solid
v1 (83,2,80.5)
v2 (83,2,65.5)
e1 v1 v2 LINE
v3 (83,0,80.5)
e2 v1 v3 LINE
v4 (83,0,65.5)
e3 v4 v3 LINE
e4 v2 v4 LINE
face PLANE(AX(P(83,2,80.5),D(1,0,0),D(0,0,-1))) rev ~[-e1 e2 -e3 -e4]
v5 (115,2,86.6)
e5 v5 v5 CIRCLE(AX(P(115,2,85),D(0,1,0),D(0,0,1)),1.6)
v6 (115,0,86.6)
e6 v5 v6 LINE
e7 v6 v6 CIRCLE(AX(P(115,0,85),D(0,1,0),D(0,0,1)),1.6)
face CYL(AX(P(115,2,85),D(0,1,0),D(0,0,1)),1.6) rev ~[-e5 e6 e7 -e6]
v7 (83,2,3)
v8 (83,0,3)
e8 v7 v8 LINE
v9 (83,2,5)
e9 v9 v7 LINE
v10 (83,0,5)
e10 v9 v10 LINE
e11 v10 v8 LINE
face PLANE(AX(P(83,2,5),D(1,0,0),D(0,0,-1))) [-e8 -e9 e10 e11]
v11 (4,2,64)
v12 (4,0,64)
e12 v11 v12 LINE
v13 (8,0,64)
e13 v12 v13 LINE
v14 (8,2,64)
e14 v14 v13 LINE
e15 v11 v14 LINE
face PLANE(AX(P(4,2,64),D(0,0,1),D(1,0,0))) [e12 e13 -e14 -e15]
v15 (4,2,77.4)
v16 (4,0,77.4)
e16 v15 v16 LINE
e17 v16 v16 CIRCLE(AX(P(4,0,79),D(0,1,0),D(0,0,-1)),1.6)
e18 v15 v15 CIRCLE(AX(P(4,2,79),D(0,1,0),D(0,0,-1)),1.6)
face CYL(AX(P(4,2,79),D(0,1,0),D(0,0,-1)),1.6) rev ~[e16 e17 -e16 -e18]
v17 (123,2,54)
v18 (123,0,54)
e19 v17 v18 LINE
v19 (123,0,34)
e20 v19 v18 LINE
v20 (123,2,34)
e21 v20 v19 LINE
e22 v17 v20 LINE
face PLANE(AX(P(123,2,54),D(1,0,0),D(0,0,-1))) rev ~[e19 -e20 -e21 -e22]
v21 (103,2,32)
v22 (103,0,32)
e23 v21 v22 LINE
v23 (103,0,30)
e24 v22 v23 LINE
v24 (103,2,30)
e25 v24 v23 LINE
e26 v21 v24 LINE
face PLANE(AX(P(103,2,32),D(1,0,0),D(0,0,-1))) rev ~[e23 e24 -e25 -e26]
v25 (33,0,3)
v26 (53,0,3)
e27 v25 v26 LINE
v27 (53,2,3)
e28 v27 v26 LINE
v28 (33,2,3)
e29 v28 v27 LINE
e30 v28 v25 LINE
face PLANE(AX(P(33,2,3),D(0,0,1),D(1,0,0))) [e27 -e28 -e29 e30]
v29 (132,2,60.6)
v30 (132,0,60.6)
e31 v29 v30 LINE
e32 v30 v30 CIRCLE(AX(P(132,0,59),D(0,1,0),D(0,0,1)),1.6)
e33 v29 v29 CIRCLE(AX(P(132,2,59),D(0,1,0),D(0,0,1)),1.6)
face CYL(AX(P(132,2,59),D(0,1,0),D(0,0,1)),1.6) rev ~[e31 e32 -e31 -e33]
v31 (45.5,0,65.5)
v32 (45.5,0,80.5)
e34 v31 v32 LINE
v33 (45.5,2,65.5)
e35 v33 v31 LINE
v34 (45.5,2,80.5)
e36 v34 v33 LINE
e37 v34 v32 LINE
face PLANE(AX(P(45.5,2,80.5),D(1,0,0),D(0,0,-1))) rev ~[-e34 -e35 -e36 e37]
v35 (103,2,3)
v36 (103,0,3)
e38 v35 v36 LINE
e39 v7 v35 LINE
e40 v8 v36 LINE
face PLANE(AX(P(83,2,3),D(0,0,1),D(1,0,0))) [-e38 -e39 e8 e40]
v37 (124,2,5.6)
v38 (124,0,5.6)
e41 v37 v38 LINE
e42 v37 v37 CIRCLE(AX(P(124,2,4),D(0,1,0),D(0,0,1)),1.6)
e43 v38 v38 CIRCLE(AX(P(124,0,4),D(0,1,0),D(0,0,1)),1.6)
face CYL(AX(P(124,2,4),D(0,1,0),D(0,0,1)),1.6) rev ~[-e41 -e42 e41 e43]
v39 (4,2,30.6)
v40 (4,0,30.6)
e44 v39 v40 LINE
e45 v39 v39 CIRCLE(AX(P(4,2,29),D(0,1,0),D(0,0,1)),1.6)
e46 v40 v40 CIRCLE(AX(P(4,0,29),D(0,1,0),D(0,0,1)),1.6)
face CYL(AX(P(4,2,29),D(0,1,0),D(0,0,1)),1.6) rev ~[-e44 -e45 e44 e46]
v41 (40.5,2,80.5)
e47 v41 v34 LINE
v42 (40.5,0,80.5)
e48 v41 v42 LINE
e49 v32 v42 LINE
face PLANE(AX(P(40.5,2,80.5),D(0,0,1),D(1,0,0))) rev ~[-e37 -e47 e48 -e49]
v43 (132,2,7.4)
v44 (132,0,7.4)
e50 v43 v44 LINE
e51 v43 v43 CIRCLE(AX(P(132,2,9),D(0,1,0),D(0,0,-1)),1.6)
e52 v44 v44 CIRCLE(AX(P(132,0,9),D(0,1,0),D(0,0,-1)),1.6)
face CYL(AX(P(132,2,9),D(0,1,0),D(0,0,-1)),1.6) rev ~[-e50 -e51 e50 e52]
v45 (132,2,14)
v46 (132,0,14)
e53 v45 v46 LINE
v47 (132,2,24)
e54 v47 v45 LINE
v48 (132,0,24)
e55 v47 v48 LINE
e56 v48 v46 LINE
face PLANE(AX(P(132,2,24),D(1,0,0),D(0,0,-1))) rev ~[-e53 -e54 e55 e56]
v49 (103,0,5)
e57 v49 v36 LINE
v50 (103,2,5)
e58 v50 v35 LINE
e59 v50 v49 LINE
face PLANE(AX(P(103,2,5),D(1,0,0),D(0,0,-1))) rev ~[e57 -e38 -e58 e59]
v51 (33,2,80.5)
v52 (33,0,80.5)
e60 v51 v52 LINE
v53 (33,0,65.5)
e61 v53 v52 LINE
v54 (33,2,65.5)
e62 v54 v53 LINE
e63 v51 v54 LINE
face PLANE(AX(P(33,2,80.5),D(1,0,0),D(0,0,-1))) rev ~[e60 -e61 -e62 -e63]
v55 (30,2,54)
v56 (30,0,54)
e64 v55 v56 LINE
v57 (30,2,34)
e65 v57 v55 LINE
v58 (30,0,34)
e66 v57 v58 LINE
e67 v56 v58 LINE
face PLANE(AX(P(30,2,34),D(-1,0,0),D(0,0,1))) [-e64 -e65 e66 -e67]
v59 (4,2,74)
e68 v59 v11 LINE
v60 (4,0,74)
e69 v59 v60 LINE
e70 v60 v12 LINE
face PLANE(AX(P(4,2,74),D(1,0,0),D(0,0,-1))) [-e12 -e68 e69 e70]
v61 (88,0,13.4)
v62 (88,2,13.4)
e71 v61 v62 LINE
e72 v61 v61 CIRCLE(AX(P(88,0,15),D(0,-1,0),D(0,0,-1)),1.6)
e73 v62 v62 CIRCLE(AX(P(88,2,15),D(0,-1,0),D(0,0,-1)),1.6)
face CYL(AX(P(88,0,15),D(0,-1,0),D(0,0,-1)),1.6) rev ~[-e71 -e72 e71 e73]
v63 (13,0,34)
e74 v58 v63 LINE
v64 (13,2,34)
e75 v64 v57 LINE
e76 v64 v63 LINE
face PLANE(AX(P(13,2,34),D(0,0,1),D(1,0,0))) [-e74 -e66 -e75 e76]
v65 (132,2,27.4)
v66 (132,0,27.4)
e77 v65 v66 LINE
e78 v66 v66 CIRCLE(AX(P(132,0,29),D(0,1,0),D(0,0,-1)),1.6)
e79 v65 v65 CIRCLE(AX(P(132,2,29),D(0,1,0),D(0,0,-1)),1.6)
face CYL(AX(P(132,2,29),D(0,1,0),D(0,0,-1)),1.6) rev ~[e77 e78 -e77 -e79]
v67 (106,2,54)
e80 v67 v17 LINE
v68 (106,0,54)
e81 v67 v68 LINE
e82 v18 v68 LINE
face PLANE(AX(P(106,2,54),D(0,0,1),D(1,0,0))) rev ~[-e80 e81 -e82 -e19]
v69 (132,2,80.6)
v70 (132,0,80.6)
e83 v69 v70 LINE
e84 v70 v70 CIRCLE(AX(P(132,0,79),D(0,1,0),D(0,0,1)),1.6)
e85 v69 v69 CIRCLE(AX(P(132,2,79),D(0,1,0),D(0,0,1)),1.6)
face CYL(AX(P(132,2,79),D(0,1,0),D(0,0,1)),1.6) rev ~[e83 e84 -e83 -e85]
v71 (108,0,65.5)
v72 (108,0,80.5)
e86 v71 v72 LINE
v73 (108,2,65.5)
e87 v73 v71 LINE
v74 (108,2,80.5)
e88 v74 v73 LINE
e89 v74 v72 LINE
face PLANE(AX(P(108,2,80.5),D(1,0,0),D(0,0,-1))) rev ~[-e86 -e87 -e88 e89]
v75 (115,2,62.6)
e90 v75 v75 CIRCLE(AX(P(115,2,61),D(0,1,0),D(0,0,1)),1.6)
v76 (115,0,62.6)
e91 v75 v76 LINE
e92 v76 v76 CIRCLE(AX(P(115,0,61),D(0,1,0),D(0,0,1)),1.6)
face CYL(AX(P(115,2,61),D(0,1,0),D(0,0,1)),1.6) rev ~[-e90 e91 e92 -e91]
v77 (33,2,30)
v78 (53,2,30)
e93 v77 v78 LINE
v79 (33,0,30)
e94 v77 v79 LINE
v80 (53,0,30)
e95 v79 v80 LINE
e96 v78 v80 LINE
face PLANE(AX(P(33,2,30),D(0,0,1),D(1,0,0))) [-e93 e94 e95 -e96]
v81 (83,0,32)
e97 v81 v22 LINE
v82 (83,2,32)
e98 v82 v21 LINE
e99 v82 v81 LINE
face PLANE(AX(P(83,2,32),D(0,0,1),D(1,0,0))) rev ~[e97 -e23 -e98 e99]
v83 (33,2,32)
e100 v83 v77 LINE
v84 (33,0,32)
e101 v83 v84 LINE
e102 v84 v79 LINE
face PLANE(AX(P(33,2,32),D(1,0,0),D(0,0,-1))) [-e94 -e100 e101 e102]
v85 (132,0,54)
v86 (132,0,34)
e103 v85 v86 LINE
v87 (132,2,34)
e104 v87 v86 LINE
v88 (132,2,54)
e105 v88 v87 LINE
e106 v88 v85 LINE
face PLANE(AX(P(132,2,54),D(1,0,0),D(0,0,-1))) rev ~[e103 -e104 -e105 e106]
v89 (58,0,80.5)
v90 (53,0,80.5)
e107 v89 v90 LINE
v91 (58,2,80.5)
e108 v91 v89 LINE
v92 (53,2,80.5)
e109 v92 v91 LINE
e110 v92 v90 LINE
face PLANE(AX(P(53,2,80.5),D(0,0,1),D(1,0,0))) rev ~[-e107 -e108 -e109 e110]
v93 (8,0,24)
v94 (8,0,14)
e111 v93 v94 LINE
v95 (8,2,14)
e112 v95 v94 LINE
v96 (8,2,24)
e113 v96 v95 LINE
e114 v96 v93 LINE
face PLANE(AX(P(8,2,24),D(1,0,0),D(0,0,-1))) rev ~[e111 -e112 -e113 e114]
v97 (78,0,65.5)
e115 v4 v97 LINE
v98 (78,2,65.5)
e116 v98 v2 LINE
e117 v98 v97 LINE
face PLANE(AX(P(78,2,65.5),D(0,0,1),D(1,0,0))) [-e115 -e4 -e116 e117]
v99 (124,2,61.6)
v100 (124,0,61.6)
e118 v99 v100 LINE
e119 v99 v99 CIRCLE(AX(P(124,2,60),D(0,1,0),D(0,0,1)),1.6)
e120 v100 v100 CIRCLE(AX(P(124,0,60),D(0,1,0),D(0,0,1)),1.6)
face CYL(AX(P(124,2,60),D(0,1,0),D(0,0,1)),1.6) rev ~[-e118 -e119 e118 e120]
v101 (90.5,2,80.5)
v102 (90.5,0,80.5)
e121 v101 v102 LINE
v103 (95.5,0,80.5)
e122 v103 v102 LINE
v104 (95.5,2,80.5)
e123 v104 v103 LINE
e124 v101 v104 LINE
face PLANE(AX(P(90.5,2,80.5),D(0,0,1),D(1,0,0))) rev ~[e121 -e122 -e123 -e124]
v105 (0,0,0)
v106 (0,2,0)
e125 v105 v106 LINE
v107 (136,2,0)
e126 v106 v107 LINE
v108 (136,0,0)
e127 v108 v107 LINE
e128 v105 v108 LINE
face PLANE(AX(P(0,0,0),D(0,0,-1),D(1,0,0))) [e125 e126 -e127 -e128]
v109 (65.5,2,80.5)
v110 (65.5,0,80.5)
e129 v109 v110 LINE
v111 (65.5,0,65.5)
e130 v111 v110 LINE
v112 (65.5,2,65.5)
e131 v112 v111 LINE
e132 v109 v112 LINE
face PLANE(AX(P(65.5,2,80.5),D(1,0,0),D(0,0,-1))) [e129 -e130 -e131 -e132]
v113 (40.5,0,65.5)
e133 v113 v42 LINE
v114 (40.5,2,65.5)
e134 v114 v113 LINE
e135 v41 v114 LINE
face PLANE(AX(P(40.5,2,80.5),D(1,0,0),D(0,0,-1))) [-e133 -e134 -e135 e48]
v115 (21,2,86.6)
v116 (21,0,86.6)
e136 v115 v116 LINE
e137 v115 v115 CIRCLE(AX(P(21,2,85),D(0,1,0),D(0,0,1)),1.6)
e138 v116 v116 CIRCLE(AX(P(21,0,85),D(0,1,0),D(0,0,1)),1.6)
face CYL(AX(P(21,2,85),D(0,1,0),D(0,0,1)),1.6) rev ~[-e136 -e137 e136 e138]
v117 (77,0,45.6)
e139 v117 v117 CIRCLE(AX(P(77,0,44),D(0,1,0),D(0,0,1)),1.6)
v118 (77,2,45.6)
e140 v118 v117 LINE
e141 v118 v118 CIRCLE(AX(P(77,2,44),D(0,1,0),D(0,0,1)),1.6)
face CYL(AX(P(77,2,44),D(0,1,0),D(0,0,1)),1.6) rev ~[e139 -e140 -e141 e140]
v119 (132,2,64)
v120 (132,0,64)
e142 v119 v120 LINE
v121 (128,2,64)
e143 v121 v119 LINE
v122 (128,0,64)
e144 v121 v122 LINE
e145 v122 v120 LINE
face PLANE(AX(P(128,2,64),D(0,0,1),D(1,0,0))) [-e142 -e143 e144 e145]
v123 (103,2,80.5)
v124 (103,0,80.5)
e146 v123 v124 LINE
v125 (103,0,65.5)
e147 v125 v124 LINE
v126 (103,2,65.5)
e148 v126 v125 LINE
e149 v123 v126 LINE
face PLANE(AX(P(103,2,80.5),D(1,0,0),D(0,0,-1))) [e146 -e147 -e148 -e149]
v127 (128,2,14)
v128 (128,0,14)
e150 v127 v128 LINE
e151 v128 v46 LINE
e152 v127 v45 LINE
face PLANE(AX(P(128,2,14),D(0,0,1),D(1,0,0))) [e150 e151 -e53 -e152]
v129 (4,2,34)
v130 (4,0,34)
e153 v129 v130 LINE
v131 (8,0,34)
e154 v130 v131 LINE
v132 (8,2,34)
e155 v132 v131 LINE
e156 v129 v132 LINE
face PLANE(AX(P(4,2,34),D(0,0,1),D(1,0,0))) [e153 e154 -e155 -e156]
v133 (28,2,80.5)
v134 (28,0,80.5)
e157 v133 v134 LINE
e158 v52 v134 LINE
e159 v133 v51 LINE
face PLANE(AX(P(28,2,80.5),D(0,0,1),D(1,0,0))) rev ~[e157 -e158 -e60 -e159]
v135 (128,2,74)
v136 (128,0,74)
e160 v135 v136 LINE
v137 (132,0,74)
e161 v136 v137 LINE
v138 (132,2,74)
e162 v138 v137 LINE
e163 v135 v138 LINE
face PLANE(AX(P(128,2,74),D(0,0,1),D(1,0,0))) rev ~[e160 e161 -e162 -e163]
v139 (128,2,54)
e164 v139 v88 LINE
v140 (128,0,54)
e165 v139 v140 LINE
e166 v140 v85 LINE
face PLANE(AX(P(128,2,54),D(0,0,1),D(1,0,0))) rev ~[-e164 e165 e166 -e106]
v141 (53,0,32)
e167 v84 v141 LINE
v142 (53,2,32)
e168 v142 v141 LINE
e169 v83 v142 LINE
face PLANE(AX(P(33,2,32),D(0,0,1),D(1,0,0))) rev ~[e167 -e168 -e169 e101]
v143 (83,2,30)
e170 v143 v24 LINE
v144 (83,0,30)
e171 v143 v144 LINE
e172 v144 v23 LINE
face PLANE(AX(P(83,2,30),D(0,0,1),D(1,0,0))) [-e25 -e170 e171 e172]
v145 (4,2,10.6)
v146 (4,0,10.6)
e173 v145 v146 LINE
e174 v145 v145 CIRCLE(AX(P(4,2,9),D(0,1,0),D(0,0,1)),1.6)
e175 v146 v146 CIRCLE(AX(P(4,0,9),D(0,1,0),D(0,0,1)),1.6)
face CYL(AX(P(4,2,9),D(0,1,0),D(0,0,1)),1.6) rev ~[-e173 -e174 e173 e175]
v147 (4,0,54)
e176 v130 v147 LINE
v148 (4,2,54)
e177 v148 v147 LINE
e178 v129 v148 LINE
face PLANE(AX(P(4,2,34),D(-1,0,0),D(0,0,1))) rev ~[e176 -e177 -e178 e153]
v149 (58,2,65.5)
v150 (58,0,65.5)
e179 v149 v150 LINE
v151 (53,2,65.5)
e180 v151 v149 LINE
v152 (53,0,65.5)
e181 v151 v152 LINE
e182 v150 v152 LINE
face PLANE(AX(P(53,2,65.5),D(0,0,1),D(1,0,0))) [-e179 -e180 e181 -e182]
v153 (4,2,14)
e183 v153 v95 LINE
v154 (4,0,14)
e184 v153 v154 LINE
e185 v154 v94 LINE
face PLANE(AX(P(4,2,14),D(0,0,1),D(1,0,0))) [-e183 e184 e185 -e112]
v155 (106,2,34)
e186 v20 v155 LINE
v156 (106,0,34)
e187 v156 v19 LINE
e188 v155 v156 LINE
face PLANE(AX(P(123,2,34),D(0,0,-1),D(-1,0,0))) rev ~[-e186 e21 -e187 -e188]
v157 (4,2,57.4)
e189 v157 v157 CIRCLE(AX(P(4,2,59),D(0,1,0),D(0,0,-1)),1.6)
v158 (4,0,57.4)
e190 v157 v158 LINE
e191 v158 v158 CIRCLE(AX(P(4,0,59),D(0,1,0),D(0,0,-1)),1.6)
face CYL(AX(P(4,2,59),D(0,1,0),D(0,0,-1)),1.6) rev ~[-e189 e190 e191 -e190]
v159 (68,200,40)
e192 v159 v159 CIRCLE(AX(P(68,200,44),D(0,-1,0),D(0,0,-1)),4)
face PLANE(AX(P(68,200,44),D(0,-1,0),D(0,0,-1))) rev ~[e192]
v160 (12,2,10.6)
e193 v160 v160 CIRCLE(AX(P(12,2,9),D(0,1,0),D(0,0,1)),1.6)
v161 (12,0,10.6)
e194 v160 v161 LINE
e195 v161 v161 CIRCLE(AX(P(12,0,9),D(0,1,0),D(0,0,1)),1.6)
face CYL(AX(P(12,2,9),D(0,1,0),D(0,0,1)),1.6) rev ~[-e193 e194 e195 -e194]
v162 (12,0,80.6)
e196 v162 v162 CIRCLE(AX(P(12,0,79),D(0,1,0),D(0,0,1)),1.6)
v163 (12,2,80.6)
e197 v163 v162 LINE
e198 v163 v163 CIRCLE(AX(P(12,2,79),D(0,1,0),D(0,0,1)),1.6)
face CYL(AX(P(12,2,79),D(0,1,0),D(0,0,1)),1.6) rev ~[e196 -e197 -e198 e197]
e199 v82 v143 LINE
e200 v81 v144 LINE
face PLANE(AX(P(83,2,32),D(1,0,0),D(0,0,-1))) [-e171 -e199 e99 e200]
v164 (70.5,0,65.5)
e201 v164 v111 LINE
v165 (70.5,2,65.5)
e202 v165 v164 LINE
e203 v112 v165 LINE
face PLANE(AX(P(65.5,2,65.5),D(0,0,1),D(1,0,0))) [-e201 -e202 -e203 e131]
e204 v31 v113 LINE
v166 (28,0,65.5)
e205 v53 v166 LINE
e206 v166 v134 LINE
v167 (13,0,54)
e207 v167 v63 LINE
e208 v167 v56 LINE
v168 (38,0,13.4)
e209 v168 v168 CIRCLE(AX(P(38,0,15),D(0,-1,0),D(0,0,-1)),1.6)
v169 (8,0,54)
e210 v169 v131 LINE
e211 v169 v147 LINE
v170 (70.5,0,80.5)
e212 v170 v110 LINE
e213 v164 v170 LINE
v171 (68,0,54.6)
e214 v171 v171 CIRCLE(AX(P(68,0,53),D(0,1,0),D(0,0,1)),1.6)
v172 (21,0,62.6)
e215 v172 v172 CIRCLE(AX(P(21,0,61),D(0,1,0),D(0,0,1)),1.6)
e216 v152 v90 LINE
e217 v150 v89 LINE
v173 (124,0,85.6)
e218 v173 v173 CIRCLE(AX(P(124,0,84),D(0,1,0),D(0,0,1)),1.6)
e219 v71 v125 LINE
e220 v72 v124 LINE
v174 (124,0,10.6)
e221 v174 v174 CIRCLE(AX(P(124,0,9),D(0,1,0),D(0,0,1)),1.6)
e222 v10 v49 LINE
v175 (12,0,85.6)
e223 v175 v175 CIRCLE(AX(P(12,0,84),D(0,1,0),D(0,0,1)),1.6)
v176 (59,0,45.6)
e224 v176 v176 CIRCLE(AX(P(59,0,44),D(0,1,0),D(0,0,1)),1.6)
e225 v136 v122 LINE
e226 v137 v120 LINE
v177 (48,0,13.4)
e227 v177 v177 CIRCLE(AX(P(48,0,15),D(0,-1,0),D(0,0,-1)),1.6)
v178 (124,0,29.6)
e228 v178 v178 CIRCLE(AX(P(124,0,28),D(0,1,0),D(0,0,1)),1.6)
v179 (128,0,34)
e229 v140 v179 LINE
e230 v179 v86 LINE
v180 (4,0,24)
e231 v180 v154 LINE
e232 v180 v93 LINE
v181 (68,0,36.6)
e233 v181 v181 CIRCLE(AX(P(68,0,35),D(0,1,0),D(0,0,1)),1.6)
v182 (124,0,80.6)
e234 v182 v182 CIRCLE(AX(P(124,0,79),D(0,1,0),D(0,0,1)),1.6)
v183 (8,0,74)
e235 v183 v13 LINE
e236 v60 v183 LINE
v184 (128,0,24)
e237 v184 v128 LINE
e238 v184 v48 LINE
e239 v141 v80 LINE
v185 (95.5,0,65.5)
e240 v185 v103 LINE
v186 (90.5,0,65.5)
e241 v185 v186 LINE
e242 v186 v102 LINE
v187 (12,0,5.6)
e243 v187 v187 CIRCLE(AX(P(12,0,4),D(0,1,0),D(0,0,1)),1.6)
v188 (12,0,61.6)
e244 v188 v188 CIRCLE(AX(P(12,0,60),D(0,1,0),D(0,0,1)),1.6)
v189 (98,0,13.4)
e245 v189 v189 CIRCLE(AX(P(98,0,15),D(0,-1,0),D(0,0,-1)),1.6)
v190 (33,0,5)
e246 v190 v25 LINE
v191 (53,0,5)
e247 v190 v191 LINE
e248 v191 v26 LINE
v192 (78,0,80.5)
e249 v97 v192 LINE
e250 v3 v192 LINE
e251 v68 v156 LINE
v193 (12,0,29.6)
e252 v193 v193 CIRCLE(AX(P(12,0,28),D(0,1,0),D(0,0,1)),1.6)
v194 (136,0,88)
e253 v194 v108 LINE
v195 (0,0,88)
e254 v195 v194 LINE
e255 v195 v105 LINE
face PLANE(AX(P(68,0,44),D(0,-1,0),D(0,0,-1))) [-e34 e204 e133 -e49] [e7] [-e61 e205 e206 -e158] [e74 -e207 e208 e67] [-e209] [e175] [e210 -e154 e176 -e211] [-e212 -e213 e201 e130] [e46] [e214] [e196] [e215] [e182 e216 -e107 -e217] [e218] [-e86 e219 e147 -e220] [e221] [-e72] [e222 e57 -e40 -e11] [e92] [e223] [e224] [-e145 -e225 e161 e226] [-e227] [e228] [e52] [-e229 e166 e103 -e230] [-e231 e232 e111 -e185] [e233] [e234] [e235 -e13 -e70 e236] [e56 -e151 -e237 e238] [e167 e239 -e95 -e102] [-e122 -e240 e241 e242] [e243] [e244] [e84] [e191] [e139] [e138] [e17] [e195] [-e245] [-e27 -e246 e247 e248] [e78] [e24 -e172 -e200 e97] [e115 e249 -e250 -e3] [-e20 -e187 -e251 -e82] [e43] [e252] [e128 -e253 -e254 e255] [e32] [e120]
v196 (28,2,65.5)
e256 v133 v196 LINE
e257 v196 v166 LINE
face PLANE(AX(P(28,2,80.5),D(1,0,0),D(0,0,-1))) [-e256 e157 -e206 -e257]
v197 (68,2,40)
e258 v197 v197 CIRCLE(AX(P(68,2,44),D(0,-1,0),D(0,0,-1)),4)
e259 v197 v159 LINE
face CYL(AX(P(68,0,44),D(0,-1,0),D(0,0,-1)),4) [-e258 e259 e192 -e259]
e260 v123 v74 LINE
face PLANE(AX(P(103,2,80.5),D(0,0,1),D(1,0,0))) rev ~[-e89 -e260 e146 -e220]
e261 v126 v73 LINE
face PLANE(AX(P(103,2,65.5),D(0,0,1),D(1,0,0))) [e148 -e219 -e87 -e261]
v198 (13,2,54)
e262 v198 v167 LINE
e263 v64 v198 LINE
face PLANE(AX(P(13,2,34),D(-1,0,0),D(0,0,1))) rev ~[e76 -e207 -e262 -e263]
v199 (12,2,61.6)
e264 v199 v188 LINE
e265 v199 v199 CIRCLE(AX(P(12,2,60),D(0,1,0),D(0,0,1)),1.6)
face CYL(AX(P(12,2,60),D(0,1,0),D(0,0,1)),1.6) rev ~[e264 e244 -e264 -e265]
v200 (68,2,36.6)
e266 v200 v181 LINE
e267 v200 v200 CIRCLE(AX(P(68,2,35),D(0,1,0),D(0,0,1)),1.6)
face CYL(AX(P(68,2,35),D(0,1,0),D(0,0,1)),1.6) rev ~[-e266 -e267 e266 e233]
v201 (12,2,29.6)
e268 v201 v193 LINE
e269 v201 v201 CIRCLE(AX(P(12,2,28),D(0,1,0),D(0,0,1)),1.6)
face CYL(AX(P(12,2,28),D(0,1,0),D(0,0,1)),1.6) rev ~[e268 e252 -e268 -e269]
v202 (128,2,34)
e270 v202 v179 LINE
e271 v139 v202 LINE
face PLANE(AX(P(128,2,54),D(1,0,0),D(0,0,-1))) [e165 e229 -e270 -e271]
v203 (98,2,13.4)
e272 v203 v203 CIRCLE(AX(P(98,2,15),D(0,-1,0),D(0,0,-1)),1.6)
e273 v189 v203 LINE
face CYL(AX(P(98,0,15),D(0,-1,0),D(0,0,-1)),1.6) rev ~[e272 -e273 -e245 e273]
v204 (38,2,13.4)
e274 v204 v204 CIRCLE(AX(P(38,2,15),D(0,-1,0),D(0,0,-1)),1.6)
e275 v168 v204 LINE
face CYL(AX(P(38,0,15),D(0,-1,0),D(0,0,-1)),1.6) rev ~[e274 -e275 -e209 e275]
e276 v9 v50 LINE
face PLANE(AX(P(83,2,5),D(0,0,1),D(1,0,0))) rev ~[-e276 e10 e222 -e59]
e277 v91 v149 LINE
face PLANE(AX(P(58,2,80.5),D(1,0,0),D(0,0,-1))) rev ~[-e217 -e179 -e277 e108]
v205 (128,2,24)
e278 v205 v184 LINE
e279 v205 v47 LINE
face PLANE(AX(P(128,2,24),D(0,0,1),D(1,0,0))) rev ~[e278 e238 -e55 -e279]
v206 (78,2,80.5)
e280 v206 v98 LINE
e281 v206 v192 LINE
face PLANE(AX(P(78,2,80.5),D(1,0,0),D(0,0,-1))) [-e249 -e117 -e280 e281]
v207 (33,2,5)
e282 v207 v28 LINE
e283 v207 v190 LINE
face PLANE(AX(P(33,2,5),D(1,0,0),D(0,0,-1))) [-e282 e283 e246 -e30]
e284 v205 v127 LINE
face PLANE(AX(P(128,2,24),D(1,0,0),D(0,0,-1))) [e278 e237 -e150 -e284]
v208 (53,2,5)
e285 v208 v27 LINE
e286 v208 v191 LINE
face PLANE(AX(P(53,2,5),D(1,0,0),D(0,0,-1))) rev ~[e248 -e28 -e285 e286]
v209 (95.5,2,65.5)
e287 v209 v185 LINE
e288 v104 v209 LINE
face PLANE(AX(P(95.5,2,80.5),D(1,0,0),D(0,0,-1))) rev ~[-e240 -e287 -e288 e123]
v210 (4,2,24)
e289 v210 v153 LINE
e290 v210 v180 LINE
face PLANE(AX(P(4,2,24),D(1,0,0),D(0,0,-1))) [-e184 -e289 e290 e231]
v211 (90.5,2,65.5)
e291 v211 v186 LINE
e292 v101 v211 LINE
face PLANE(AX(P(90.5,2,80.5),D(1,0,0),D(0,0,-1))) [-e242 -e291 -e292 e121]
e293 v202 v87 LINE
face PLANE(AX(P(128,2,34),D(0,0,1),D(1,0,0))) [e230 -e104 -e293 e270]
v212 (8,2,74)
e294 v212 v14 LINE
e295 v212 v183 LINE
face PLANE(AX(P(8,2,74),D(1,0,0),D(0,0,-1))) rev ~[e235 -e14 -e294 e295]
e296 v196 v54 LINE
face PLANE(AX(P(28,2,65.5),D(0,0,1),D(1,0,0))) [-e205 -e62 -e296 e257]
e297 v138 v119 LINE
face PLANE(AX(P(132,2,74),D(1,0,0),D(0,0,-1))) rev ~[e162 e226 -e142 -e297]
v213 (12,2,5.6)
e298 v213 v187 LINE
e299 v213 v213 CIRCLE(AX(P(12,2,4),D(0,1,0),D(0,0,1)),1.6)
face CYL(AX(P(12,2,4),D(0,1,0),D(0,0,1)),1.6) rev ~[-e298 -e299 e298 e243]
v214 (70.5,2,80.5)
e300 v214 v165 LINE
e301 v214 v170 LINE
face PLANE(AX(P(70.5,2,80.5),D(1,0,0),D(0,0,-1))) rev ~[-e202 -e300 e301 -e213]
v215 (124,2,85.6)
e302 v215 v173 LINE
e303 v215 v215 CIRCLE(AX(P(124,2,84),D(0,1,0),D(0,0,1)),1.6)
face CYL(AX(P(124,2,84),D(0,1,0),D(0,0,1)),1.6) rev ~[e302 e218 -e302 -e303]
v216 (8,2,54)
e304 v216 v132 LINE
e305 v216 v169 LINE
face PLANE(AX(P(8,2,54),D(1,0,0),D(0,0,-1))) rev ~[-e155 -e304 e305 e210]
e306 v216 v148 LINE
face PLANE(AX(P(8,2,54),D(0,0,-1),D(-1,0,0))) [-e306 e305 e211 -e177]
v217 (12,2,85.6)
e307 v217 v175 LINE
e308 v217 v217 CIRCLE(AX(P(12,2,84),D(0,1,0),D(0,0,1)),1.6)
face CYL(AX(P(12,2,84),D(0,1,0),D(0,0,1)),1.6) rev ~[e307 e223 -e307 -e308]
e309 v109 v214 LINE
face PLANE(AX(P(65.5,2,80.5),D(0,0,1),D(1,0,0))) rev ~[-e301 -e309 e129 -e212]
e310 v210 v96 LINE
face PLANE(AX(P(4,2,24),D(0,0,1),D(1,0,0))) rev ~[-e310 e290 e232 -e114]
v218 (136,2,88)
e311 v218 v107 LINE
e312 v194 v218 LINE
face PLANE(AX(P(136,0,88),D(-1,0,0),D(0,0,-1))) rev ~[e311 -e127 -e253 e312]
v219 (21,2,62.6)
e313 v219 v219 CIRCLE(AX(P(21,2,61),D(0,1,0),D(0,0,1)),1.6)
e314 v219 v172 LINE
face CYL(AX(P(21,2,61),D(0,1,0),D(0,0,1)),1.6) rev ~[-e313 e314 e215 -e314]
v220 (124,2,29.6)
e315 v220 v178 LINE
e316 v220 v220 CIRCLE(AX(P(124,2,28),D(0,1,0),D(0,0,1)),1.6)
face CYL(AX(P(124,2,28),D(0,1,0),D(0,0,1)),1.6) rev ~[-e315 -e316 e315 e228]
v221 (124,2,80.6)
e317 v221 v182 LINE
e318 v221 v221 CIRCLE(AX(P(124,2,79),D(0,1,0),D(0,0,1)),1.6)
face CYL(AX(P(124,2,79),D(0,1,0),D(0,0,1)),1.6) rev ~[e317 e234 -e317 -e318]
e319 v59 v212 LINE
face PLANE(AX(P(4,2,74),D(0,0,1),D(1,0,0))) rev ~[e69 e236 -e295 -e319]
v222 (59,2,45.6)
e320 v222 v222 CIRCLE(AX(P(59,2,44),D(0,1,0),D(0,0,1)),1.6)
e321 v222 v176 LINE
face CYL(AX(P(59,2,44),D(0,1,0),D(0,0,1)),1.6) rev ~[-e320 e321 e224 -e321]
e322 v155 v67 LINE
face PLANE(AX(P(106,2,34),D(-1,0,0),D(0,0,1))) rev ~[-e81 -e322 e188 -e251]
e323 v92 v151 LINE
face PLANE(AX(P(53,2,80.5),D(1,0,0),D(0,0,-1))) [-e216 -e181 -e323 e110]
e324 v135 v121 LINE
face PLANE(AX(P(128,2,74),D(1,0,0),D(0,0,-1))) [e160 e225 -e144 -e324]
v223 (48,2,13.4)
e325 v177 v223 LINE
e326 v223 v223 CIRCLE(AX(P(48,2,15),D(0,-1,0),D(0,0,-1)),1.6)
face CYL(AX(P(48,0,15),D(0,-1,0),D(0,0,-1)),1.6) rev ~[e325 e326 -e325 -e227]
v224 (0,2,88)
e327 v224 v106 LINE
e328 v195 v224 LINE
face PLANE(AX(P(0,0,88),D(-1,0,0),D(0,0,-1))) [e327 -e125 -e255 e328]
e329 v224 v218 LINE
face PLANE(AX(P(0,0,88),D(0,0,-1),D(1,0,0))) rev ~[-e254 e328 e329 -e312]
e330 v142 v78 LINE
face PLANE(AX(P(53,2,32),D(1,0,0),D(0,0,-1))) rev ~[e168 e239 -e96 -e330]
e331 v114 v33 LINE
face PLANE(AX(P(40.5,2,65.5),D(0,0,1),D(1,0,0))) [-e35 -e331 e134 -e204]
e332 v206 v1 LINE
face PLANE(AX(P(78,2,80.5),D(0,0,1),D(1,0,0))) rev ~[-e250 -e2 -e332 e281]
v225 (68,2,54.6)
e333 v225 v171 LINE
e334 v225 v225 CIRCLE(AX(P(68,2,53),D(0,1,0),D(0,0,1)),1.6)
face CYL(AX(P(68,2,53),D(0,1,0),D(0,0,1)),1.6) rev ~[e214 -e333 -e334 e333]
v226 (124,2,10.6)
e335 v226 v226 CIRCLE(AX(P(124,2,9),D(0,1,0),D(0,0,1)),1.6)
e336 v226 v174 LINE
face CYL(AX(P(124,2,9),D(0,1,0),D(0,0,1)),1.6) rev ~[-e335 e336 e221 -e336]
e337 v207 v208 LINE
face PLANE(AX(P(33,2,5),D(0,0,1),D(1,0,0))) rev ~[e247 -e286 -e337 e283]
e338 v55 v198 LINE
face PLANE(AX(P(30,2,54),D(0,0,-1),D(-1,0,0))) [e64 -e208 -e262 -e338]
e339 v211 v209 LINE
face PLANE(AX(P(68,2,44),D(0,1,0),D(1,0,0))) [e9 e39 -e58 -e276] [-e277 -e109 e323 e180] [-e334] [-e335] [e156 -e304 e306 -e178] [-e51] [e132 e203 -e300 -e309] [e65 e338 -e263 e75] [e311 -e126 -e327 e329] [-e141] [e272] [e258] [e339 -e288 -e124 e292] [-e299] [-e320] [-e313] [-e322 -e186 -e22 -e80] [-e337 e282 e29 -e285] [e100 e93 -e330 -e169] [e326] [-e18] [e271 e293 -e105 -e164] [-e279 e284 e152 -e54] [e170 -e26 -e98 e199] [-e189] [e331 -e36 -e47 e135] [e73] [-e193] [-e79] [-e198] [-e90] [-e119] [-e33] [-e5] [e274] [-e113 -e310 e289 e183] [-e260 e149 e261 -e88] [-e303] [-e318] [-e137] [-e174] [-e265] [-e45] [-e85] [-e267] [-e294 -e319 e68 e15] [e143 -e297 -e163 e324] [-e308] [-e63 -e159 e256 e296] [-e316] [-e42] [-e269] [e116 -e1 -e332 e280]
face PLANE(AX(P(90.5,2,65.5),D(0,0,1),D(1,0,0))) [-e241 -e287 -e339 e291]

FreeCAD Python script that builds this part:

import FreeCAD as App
import Part
import Sketcher


def add_polygon(sketch, points):
    """Adds a closed chain of lines whose ends are joined by coincident constraints."""
    first, n = sketch.GeometryCount, len(points)
    for a, b in zip(points, points[1:] + points[:1]):
        sketch.addGeometry(Part.LineSegment(App.Vector(*a, 0), App.Vector(*b, 0)), False)
    for i in range(n):
        sketch.addConstraint(Sketcher.Constraint("Coincident", first + i, 2, first + (i + 1) % n, 1))

doc = App.newDocument("Part")
body = doc.addObject("PartDesign::Body", "Body")

sketch1 = body.newObject("Sketcher::SketchObject", "Sketch")
sketch1.AttachmentSupport = (doc.getObject("XZ_Plane"), [""])
sketch1.MapMode = "FlatFace"
add_polygon(sketch1, [(0, 0), (0, 88), (136, 88), (136, 0)])
sketch1.addConstraint([
    Sketcher.Constraint("Vertical", 0),
    Sketcher.Constraint("Horizontal", 1),
    Sketcher.Constraint("Vertical", 2),
    Sketcher.Constraint("Horizontal", 3),
    Sketcher.Constraint("Coincident", 3, 2, -1, 1),
    Sketcher.Constraint("DistanceX", 1, 1, 1, 2, 136.0),
    Sketcher.Constraint("DistanceY", 0, 1, 0, 2, 88.0),
])
pad1 = body.newObject("PartDesign::Pad", "Pad")
pad1.Profile = sketch1
pad1.Length = 2
pad1.Reversed = True

sketch2 = body.newObject("Sketcher::SketchObject", "Sketch001")
sketch2.AttachmentSupport = (doc.getObject("XZ_Plane"), [""])
sketch2.MapMode = "FlatFace"
sketch2.AttachmentOffset = App.Placement(App.Vector(0, 0, -2), App.Rotation())
sketch2.addGeometry(Part.Circle(App.Vector(4, 29, 0), App.Vector(0, 0, 1), 1.6), False)
sketch2.addGeometry(Part.Circle(App.Vector(4, 9, 0), App.Vector(0, 0, 1), 1.6), False)
sketch2.addGeometry(Part.Circle(App.Vector(132, 9, 0), App.Vector(0, 0, 1), 1.6), False)
sketch2.addGeometry(Part.Circle(App.Vector(132, 29, 0), App.Vector(0, 0, 1), 1.6), False)
sketch2.addGeometry(Part.Circle(App.Vector(132, 59, 0), App.Vector(0, 0, 1), 1.6), False)
sketch2.addGeometry(Part.Circle(App.Vector(132, 79, 0), App.Vector(0, 0, 1), 1.6), False)
sketch2.addGeometry(Part.Circle(App.Vector(4, 79, 0), App.Vector(0, 0, 1), 1.6), False)
sketch2.addGeometry(Part.Circle(App.Vector(4, 59, 0), App.Vector(0, 0, 1), 1.6), False)
add_polygon(sketch2, [(4, 34), (4, 54), (8, 54), (8, 34)])
add_polygon(sketch2, [(4, 14), (4, 24), (8, 24), (8, 14)])
add_polygon(sketch2, [(128, 14), (128, 24), (132, 24), (132, 14)])
add_polygon(sketch2, [(128, 34), (128, 54), (132, 54), (132, 34)])
add_polygon(sketch2, [(128, 64), (128, 74), (132, 74), (132, 64)])
add_polygon(sketch2, [(4, 64), (4, 74), (8, 74), (8, 64)])
sketch2.addConstraint([
    Sketcher.Constraint("Vertical", 8),
    Sketcher.Constraint("Horizontal", 9),
    Sketcher.Constraint("Vertical", 10),
    Sketcher.Constraint("Horizontal", 11),
    Sketcher.Constraint("Vertical", 12),
    Sketcher.Constraint("Horizontal", 13),
    Sketcher.Constraint("Vertical", 14),
    Sketcher.Constraint("Horizontal", 15),
    Sketcher.Constraint("Vertical", 16),
    Sketcher.Constraint("Horizontal", 17),
    Sketcher.Constraint("Vertical", 18),
    Sketcher.Constraint("Horizontal", 19),
    Sketcher.Constraint("Vertical", 20),
    Sketcher.Constraint("Horizontal", 21),
    Sketcher.Constraint("Vertical", 22),
    Sketcher.Constraint("Horizontal", 23),
    Sketcher.Constraint("Vertical", 24),
    Sketcher.Constraint("Horizontal", 25),
    Sketcher.Constraint("Vertical", 26),
    Sketcher.Constraint("Horizontal", 27),
    Sketcher.Constraint("Vertical", 28),
    Sketcher.Constraint("Horizontal", 29),
    Sketcher.Constraint("Vertical", 30),
    Sketcher.Constraint("Horizontal", 31),
    Sketcher.Constraint("Equal", 0, 1),
    Sketcher.Constraint("Equal", 1, 2),
    Sketcher.Constraint("Equal", 2, 3),
    Sketcher.Constraint("Equal", 3, 4),
    Sketcher.Constraint("Equal", 4, 5),
    Sketcher.Constraint("Equal", 5, 6),
    Sketcher.Constraint("Equal", 6, 7),
    Sketcher.Constraint("Horizontal", 1, 3, 2, 3),
    Sketcher.Constraint("Horizontal", 0, 3, 3, 3),
    Sketcher.Constraint("Horizontal", 5, 3, 6, 3),
    Sketcher.Constraint("Horizontal", 4, 3, 7, 3),
    Sketcher.Constraint("Horizontal", 13, 2, 16, 2),
    Sketcher.Constraint("Horizontal", 15, 2, 18, 2),
    Sketcher.Constraint("Horizontal", 9, 2, 20, 2),
    Sketcher.Constraint("Horizontal", 11, 2, 22, 2),
    Sketcher.Constraint("Horizontal", 25, 2, 28, 2),
    Sketcher.Constraint("Horizontal", 27, 2, 30, 2),
    Sketcher.Constraint("Vertical", 0, 3, 1, 3),
    Sketcher.Constraint("Vertical", 2, 3, 3, 3),
    Sketcher.Constraint("Vertical", 3, 3, 4, 3),
    Sketcher.Constraint("Vertical", 4, 3, 5, 3),
    Sketcher.Constraint("Vertical", 1, 3, 6, 3),
    Sketcher.Constraint("Vertical", 6, 3, 7, 3),
    Sketcher.Constraint("Vertical", 7, 3, 8, 2),
    Sketcher.Constraint("Vertical", 11, 2, 12, 2),
    Sketcher.Constraint("Vertical", 10, 2, 13, 2),
    Sketcher.Constraint("Vertical", 5, 3, 17, 2),
    Sketcher.Constraint("Vertical", 19, 2, 20, 2),
    Sketcher.Constraint("Vertical", 18, 2, 21, 2),
    Sketcher.Constraint("Vertical", 23, 2, 24, 2),
    Sketcher.Constraint("Vertical", 22, 2, 25, 2),
    Sketcher.Constraint("Vertical", 15, 2, 28, 2),
    Sketcher.Constraint("Vertical", 14, 2, 29, 2),
    Sketcher.Constraint("Equal", 15, 17),
    Sketcher.Constraint("Equal", 18, 24),
    Sketcher.Constraint("Diameter", 0, 3.2),
    Sketcher.Constraint("DistanceX", 9, 1, 9, 2, 4.0),
    Sketcher.Constraint("DistanceY", 8, 1, 8, 2, 20.0),
    Sketcher.Constraint("DistanceY", 12, 1, 12, 2, 10.0),
    Sketcher.Constraint("DistanceX", -1, 1, 0, 3, 4.0),
    Sketcher.Constraint("DistanceY", -1, 1, 0, 3, 29.0),
    Sketcher.Constraint("DistanceY", -1, 1, 1, 3, 9.0),
    Sketcher.Constraint("DistanceX", -1, 1, 2, 3, 132.0),
    Sketcher.Constraint("DistanceY", -1, 1, 4, 3, 59.0),
    Sketcher.Constraint("DistanceY", -1, 1, 5, 3, 79.0),
    Sketcher.Constraint("DistanceY", -1, 1, 8, 2, 54.0),
    Sketcher.Constraint("DistanceY", -1, 1, 12, 2, 24.0),
    Sketcher.Constraint("DistanceY", -1, 1, 24, 2, 74.0),
])
pocket1 = body.newObject("PartDesign::Pocket", "Pocket")
pocket1.Profile = sketch2
pocket1.Length = 2
pocket1.Reversed = True

sketch3 = body.newObject("Sketcher::SketchObject", "Sketch002")
sketch3.AttachmentSupport = (doc.getObject("XZ_Plane"), [""])
sketch3.MapMode = "FlatFace"
sketch3.AttachmentOffset = App.Placement(App.Vector(0, 0, -2), App.Rotation())
sketch3.addGeometry([
    Part.Circle(App.Vector(12, 28, 0), App.Vector(0, 0, 1), 1.6),
    Part.Circle(App.Vector(12, 60, 0), App.Vector(0, 0, 1), 1.6),
    Part.Circle(App.Vector(124, 60, 0), App.Vector(0, 0, 1), 1.6),
    Part.Circle(App.Vector(124, 28, 0), App.Vector(0, 0, 1), 1.6),
    Part.Circle(App.Vector(12, 79, 0), App.Vector(0, 0, 1), 1.6),
    Part.Circle(App.Vector(12, 84, 0), App.Vector(0, 0, 1), 1.6),
    Part.Circle(App.Vector(12, 9, 0), App.Vector(0, 0, 1), 1.6),
    Part.Circle(App.Vector(12, 4, 0), App.Vector(0, 0, 1), 1.6),
    Part.Circle(App.Vector(124, 84, 0), App.Vector(0, 0, 1), 1.6),
    Part.Circle(App.Vector(124, 79, 0), App.Vector(0, 0, 1), 1.6),
    Part.Circle(App.Vector(124, 4, 0), App.Vector(0, 0, 1), 1.6),
    Part.Circle(App.Vector(124, 9, 0), App.Vector(0, 0, 1), 1.6),
], False)
sketch3.addConstraint([
    Sketcher.Constraint("Equal", 0, 1),
    Sketcher.Constraint("Equal", 1, 2),
    Sketcher.Constraint("Equal", 2, 3),
    Sketcher.Constraint("Equal", 3, 4),
    Sketcher.Constraint("Equal", 4, 5),
    Sketcher.Constraint("Equal", 5, 6),
    Sketcher.Constraint("Equal", 6, 7),
    Sketcher.Constraint("Equal", 7, 8),
    Sketcher.Constraint("Equal", 8, 9),
    Sketcher.Constraint("Equal", 9, 10),
    Sketcher.Constraint("Equal", 10, 11),
    Sketcher.Constraint("Horizontal", 1, 3, 2, 3),
    Sketcher.Constraint("Horizontal", 0, 3, 3, 3),
    Sketcher.Constraint("Horizontal", 5, 3, 8, 3),
    Sketcher.Constraint("Horizontal", 4, 3, 9, 3),
    Sketcher.Constraint("Horizontal", 7, 3, 10, 3),
    Sketcher.Constraint("Horizontal", 6, 3, 11, 3),
    Sketcher.Constraint("Vertical", 0, 3, 1, 3),
    Sketcher.Constraint("Vertical", 2, 3, 3, 3),
    Sketcher.Constraint("Vertical", 1, 3, 4, 3),
    Sketcher.Constraint("Vertical", 4, 3, 5, 3),
    Sketcher.Constraint("Vertical", 5, 3, 6, 3),
    Sketcher.Constraint("Vertical", 6, 3, 7, 3),
    Sketcher.Constraint("Vertical", 3, 3, 8, 3),
    Sketcher.Constraint("Vertical", 8, 3, 9, 3),
    Sketcher.Constraint("Vertical", 9, 3, 10, 3),
    Sketcher.Constraint("Vertical", 10, 3, 11, 3),
    Sketcher.Constraint("Diameter", 0, 3.2),
    Sketcher.Constraint("DistanceX", -1, 1, 0, 3, 12.0),
    Sketcher.Constraint("DistanceY", -1, 1, 0, 3, 28.0),
    Sketcher.Constraint("DistanceY", -1, 1, 1, 3, 60.0),
    Sketcher.Constraint("DistanceX", -1, 1, 2, 3, 124.0),
    Sketcher.Constraint("DistanceY", -1, 1, 4, 3, 79.0),
    Sketcher.Constraint("DistanceY", -1, 1, 5, 3, 84.0),
    Sketcher.Constraint("DistanceY", -1, 1, 6, 3, 9.0),
    Sketcher.Constraint("DistanceY", -1, 1, 7, 3, 4.0),
])
pocket2 = body.newObject("PartDesign::Pocket", "Pocket001")
pocket2.Profile = sketch3
pocket2.Length = 10
pocket2.Reversed = True

sketch4 = body.newObject("Sketcher::SketchObject", "Sketch003")
sketch4.AttachmentSupport = (doc.getObject("XZ_Plane"), [""])
sketch4.MapMode = "FlatFace"
sketch4.AttachmentOffset = App.Placement(App.Vector(0, 0, -2), App.Rotation())
sketch4.addGeometry([
    Part.Circle(App.Vector(68, 35, 0), App.Vector(0, 0, 1), 1.6),
    Part.Circle(App.Vector(68, 53, 0), App.Vector(0, 0, 1), 1.6),
    Part.Circle(App.Vector(77, 44, 0), App.Vector(0, 0, 1), 1.6),
    Part.Circle(App.Vector(59, 44, 0), App.Vector(0, 0, 1), 1.6),
], False)
sketch4.addConstraint([
    Sketcher.Constraint("Equal", 0, 1),
    Sketcher.Constraint("Equal", 1, 2),
    Sketcher.Constraint("Equal", 2, 3),
    Sketcher.Constraint("Horizontal", 2, 3, 3, 3),
    Sketcher.Constraint("Vertical", 0, 3, 1, 3),
    Sketcher.Constraint("Diameter", 0, 3.2),
    Sketcher.Constraint("DistanceX", -1, 1, 0, 3, 68.0),
    Sketcher.Constraint("DistanceY", -1, 1, 0, 3, 35.0),
    Sketcher.Constraint("DistanceY", -1, 1, 1, 3, 53.0),
    Sketcher.Constraint("DistanceX", -1, 1, 2, 3, 77.0),
    Sketcher.Constraint("DistanceY", -1, 1, 2, 3, 44.0),
    Sketcher.Constraint("DistanceX", -1, 1, 3, 3, 59.0),
])
pocket3 = body.newObject("PartDesign::Pocket", "Pocket002")
pocket3.Profile = sketch4
pocket3.Length = 10
pocket3.Reversed = True

sketch5 = body.newObject("Sketcher::SketchObject", "Sketch004")
sketch5.AttachmentSupport = (doc.getObject("XZ_Plane"), [""])
sketch5.MapMode = "FlatFace"
sketch5.AttachmentOffset = App.Placement(App.Vector(0, 0, -2), App.Rotation())
sketch5.addGeometry([
    Part.Circle(App.Vector(21, 85, 0), App.Vector(0, 0, 1), 1.6),
    Part.Circle(App.Vector(21, 61, 0), App.Vector(0, 0, 1), 1.6),
    Part.Circle(App.Vector(115, 61, 0), App.Vector(0, 0, 1), 1.6),
    Part.Circle(App.Vector(115, 85, 0), App.Vector(0, 0, 1), 1.6),
], False)
sketch5.addConstraint([
    Sketcher.Constraint("Equal", 0, 1),
    Sketcher.Constraint("Equal", 1, 2),
    Sketcher.Constraint("Equal", 2, 3),
    Sketcher.Constraint("Horizontal", 1, 3, 2, 3),
    Sketcher.Constraint("Horizontal", 0, 3, 3, 3),
    Sketcher.Constraint("Vertical", 0, 3, 1, 3),
    Sketcher.Constraint("Vertical", 2, 3, 3, 3),
    Sketcher.Constraint("Diameter", 0, 3.2),
    Sketcher.Constraint("DistanceX", -1, 1, 0, 3, 21.0),
    Sketcher.Constraint("DistanceY", -1, 1, 0, 3, 85.0),
    Sketcher.Constraint("DistanceY", -1, 1, 1, 3, 61.0),
    Sketcher.Constraint("DistanceX", -1, 1, 2, 3, 115.0),
])
pocket4 = body.newObject("PartDesign::Pocket", "Pocket003")
pocket4.Profile = sketch5
pocket4.Length = 10
pocket4.Reversed = True

sketch6 = body.newObject("Sketcher::SketchObject", "Sketch005")
sketch6.AttachmentSupport = (doc.getObject("XZ_Plane"), [""])
sketch6.MapMode = "FlatFace"
sketch6.addGeometry(Part.Circle(App.Vector(68, 44, 0), App.Vector(0, 0, 1), 4), False)
sketch6.addConstraint([
    Sketcher.Constraint("Diameter", 0, 8.0),
    Sketcher.Constraint("DistanceX", -1, 1, 0, 3, 68.0),
    Sketcher.Constraint("DistanceY", -1, 1, 0, 3, 44.0),
])
pad2 = body.newObject("PartDesign::Pad", "Pad001")
pad2.Profile = sketch6
pad2.Length = 200
pad2.Reversed = True

sketch7 = body.newObject("Sketcher::SketchObject", "Sketch006")
sketch7.AttachmentSupport = (doc.getObject("XZ_Plane"), [""])
sketch7.MapMode = "FlatFace"
sketch7.AttachmentOffset = App.Placement(App.Vector(0, 0, -2), App.Rotation())
add_polygon(sketch7, [(33, 3), (33, 5), (53, 5), (53, 3)])
add_polygon(sketch7, [(33, 30), (33, 32), (53, 32), (53, 30)])
add_polygon(sketch7, [(83, 30), (83, 32), (103, 32), (103, 30)])
add_polygon(sketch7, [(83, 3), (83, 5), (103, 5), (103, 3)])
sketch7.addConstraint([
    Sketcher.Constraint("Vertical", 0),
    Sketcher.Constraint("Horizontal", 1),
    Sketcher.Constraint("Vertical", 2),
    Sketcher.Constraint("Horizontal", 3),
    Sketcher.Constraint("Vertical", 4),
    Sketcher.Constraint("Horizontal", 5),
    Sketcher.Constraint("Vertical", 6),
    Sketcher.Constraint("Horizontal", 7),
    Sketcher.Constraint("Vertical", 8),
    Sketcher.Constraint("Horizontal", 9),
    Sketcher.Constraint("Vertical", 10),
    Sketcher.Constraint("Horizontal", 11),
    Sketcher.Constraint("Vertical", 12),
    Sketcher.Constraint("Horizontal", 13),
    Sketcher.Constraint("Vertical", 14),
    Sketcher.Constraint("Horizontal", 15),
    Sketcher.Constraint("Horizontal", 5, 2, 8, 2),
    Sketcher.Constraint("Horizontal", 7, 2, 10, 2),
    Sketcher.Constraint("Horizontal", 1, 2, 12, 2),
    Sketcher.Constraint("Horizontal", 3, 2, 14, 2),
    Sketcher.Constraint("Vertical", 3, 2, 4, 2),
    Sketcher.Constraint("Vertical", 2, 2, 5, 2),
    Sketcher.Constraint("Vertical", 11, 2, 12, 2),
    Sketcher.Constraint("Vertical", 10, 2, 13, 2),
    Sketcher.Constraint("Equal", 7, 9),
    Sketcher.Constraint("Equal", 2, 4),
    Sketcher.Constraint("DistanceX", 1, 1, 1, 2, 20.0),
    Sketcher.Constraint("DistanceY", 0, 1, 0, 2, 2.0),
    Sketcher.Constraint("DistanceX", -1, 1, 0, 2, 33.0),
    Sketcher.Constraint("DistanceY", -1, 1, 0, 2, 5.0),
    Sketcher.Constraint("DistanceY", -1, 1, 4, 2, 32.0),
    Sketcher.Constraint("DistanceX", -1, 1, 8, 2, 83.0),
])
pocket5 = body.newObject("PartDesign::Pocket", "Pocket004")
pocket5.Profile = sketch7
pocket5.Length = 2
pocket5.Reversed = True

sketch8 = body.newObject("Sketcher::SketchObject", "Sketch007")
sketch8.AttachmentSupport = (doc.getObject("XZ_Plane"), [""])
sketch8.MapMode = "FlatFace"
sketch8.AttachmentOffset = App.Placement(App.Vector(0, 0, -2), App.Rotation())
add_polygon(sketch8, [(13, 34), (13, 54), (30, 54), (30, 34)])
add_polygon(sketch8, [(106, 34), (106, 54), (123, 54), (123, 34)])
sketch8.addConstraint([
    Sketcher.Constraint("Vertical", 0),
    Sketcher.Constraint("Horizontal", 1),
    Sketcher.Constraint("Vertical", 2),
    Sketcher.Constraint("Horizontal", 3),
    Sketcher.Constraint("Vertical", 4),
    Sketcher.Constraint("Horizontal", 5),
    Sketcher.Constraint("Vertical", 6),
    Sketcher.Constraint("Horizontal", 7),
    Sketcher.Constraint("Horizontal", 1, 2, 4, 2),
    Sketcher.Constraint("Horizontal", 3, 2, 6, 2),
    Sketcher.Constraint("Equal", 3, 5),
    Sketcher.Constraint("DistanceX", 1, 1, 1, 2, 17.0),
    Sketcher.Constraint("DistanceY", 0, 1, 0, 2, 20.0),
    Sketcher.Constraint("DistanceX", -1, 1, 0, 2, 13.0),
    Sketcher.Constraint("DistanceY", -1, 1, 0, 2, 54.0),
    Sketcher.Constraint("DistanceX", -1, 1, 4, 2, 106.0),
])
pocket6 = body.newObject("PartDesign::Pocket", "Pocket005")
pocket6.Profile = sketch8
pocket6.Length = 10
pocket6.Reversed = True

sketch9 = body.newObject("Sketcher::SketchObject", "Sketch008")
sketch9.AttachmentSupport = (doc.getObject("XZ_Plane"), [""])
sketch9.MapMode = "FlatFace"
sketch9.AttachmentOffset = App.Placement(App.Vector(0, 0, -2), App.Rotation())
add_polygon(sketch9, [(66, 66), (66, 80), (70, 80), (70, 66)])
add_polygon(sketch9, [(78, 66), (78, 80), (83, 80), (83, 66)])
add_polygon(sketch9, [(90, 66), (90, 80), (96, 80), (96, 66)])
add_polygon(sketch9, [(103, 66), (103, 80), (108, 80), (108, 66)])
add_polygon(sketch9, [(53, 66), (53, 80), (58, 80), (58, 66)])
add_polygon(sketch9, [(40, 66), (40, 80), (46, 80), (46, 66)])
add_polygon(sketch9, [(28, 66), (28, 80), (33, 80), (33, 66)])
sketch9.addConstraint([
    Sketcher.Constraint("Vertical", 0),
    Sketcher.Constraint("Horizontal", 1),
    Sketcher.Constraint("Vertical", 2),
    Sketcher.Constraint("Horizontal", 3),
    Sketcher.Constraint("Vertical", 4),
    Sketcher.Constraint("Horizontal", 5),
    Sketcher.Constraint("Vertical", 6),
    Sketcher.Constraint("Horizontal", 7),
    Sketcher.Constraint("Vertical", 8),
    Sketcher.Constraint("Horizontal", 9),
    Sketcher.Constraint("Vertical", 10),
    Sketcher.Constraint("Horizontal", 11),
    Sketcher.Constraint("Vertical", 12),
    Sketcher.Constraint("Horizontal", 13),
    Sketcher.Constraint("Vertical", 14),
    Sketcher.Constraint("Horizontal", 15),
    Sketcher.Constraint("Vertical", 16),
    Sketcher.Constraint("Horizontal", 17),
    Sketcher.Constraint("Vertical", 18),
    Sketcher.Constraint("Horizontal", 19),
    Sketcher.Constraint("Vertical", 20),
    Sketcher.Constraint("Horizontal", 21),
    Sketcher.Constraint("Vertical", 22),
    Sketcher.Constraint("Horizontal", 23),
    Sketcher.Constraint("Vertical", 24),
    Sketcher.Constraint("Horizontal", 25),
    Sketcher.Constraint("Vertical", 26),
    Sketcher.Constraint("Horizontal", 27),
    Sketcher.Constraint("Horizontal", 1, 2, 4, 2),
    Sketcher.Constraint("Horizontal", 3, 2, 6, 2),
    Sketcher.Constraint("Horizontal", 5, 2, 8, 2),
    Sketcher.Constraint("Horizontal", 7, 2, 10, 2),
    Sketcher.Constraint("Horizontal", 9, 2, 12, 2),
    Sketcher.Constraint("Horizontal", 11, 2, 14, 2),
    Sketcher.Constraint("Horizontal", 13, 2, 16, 2),
    Sketcher.Constraint("Horizontal", 15, 2, 18, 2),
    Sketcher.Constraint("Horizontal", 17, 2, 20, 2),
    Sketcher.Constraint("Horizontal", 19, 2, 22, 2),
    Sketcher.Constraint("Horizontal", 21, 2, 24, 2),
    Sketcher.Constraint("Horizontal", 23, 2, 26, 2),
    Sketcher.Constraint("Equal", 3, 5),
    Sketcher.Constraint("Equal", 7, 9),
    Sketcher.Constraint("Equal", 11, 13),
    Sketcher.Constraint("Equal", 15, 17),
    Sketcher.Constraint("Equal", 19, 21),
    Sketcher.Constraint("Equal", 23, 25),
    Sketcher.Constraint("DistanceX", 1, 1, 1, 2, 5.0),
    Sketcher.Constraint("DistanceY", 0, 1, 0, 2, 15.0),
    Sketcher.Constraint("DistanceX", -1, 1, 4, 2, 78.0),
    Sketcher.Constraint("DistanceX", -1, 1, 12, 2, 103.0),
    Sketcher.Constraint("DistanceX", -1, 1, 16, 2, 53.0),
    Sketcher.Constraint("DistanceX", -1, 1, 24, 2, 28.0),
    Sketcher.Constraint("DistanceX", 1, 2, 8, 2, 20.0),
    Sketcher.Constraint("DistanceX", 20, 2, 0, 2, 25.0),
    Sketcher.Constraint("DistanceX", -1, 1, 0, 2, 65.5),
    Sketcher.Constraint("DistanceY", -1, 1, 0, 2, 80.5),
])
pocket7 = body.newObject("PartDesign::Pocket", "Pocket006")
pocket7.Profile = sketch9
pocket7.Length = 5
pocket7.Reversed = True

sketch10 = body.newObject("Sketcher::SketchObject", "Sketch009")
sketch10.AttachmentSupport = (doc.getObject("XZ_Plane"), [""])
sketch10.MapMode = "FlatFace"
sketch10.addGeometry([
    Part.Circle(App.Vector(88, 15, 0), App.Vector(0, 0, 1), 1.6),
    Part.Circle(App.Vector(48, 15, 0), App.Vector(0, 0, 1), 1.6),
    Part.Circle(App.Vector(98, 15, 0), App.Vector(0, 0, 1), 1.6),
    Part.Circle(App.Vector(38, 15, 0), App.Vector(0, 0, 1), 1.6),
], False)
sketch10.addConstraint([
    Sketcher.Constraint("Equal", 0, 1),
    Sketcher.Constraint("Equal", 1, 2),
    Sketcher.Constraint("Equal", 2, 3),
    Sketcher.Constraint("Horizontal", 0, 3, 1, 3),
    Sketcher.Constraint("Horizontal", 1, 3, 2, 3),
    Sketcher.Constraint("Horizontal", 2, 3, 3, 3),
    Sketcher.Constraint("Diameter", 0, 3.2),
    Sketcher.Constraint("DistanceX", -1, 1, 0, 3, 88.0),
    Sketcher.Constraint("DistanceY", -1, 1, 0, 3, 15.0),
    Sketcher.Constraint("DistanceX", -1, 1, 1, 3, 48.0),
    Sketcher.Constraint("DistanceX", -1, 1, 2, 3, 98.0),
    Sketcher.Constraint("DistanceX", -1, 1, 3, 3, 38.0),
])
pocket8 = body.newObject("PartDesign::Pocket", "Pocket007")
pocket8.Profile = sketch10
pocket8.Length = 10

doc.recompute()
